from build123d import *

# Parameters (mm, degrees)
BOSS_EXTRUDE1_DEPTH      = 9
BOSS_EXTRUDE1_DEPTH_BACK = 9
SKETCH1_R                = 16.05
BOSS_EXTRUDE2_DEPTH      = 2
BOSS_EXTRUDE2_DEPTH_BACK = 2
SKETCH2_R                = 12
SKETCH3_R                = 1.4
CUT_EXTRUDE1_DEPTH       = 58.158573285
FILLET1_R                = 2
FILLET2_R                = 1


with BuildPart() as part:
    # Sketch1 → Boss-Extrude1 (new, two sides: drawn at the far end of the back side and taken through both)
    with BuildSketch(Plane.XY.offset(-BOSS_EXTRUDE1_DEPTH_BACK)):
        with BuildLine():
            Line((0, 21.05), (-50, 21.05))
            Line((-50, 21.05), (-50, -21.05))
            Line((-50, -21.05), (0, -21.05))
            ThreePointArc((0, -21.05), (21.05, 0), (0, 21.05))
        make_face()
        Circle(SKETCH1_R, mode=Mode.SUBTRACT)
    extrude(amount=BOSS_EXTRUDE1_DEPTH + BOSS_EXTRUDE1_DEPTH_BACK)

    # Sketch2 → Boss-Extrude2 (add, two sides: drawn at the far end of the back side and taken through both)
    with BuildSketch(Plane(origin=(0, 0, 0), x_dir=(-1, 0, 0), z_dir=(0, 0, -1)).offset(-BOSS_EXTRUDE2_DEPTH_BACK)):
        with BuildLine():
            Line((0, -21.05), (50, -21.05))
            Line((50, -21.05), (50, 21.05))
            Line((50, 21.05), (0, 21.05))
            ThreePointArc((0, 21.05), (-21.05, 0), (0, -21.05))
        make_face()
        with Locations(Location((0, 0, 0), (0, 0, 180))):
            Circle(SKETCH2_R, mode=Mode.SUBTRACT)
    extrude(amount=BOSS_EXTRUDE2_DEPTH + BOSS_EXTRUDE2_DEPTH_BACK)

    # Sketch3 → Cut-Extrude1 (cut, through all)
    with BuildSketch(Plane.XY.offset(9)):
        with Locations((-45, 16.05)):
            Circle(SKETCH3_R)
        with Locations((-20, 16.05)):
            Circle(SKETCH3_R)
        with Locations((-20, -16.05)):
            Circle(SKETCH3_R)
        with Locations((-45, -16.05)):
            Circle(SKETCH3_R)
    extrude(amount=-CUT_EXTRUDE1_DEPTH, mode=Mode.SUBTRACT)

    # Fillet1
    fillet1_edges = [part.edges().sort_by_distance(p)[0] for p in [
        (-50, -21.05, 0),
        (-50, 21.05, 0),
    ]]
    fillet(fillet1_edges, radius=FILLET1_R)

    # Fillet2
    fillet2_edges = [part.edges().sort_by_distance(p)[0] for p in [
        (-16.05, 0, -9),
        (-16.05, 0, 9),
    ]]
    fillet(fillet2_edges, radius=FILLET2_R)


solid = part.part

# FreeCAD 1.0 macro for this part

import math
import FreeCAD as App
import Part
import Sketcher

V = App.Vector
Q = App.Units.Quantity


def edges_at(feature, points):
    """Names of the edges that pass closest to the given points."""
    edges = feature.Shape.Edges
    near = lambda p: min(range(len(edges)), key=lambda i: edges[i].distToShape(Part.Vertex(*p))[0])
    return sorted({f"Edge{near(p) + 1}" for p in points})

doc = App.newDocument("Part")
body = doc.addObject("PartDesign::Body", "Body")

# Sketch on XY plane
sketch1 = doc.addObject("Sketcher::SketchObject", "Sketch")
body.addObject(sketch1)
sketch1.AttachmentSupport = (doc.XY_Plane, [""])
sketch1.MapMode = "FlatFace"
sketch1.addGeometry([
    Part.LineSegment(V(0, 21, 0), V(-50, 21, 0)),  # 0
    Part.LineSegment(V(-50, 21, 0), V(-50, -21, 0)),  # 1
    Part.LineSegment(V(-50, -21, 0), V(0, -21, 0)),  # 2
    Part.ArcOfCircle(Part.Circle(V(0, 0, 0), V(0, 0, 1), 21), math.radians(-90), math.radians(90)),  # 3
    Part.Circle(V(0, 0, 0), V(0, 0, 1), 16),  # 4
], False)
sketch1.addConstraint([
    Sketcher.Constraint("Coincident", 0, 2, 1, 1),
    Sketcher.Constraint("Coincident", 1, 2, 2, 1),
    Sketcher.Constraint("Tangent", 2, 2, 3, 1),
    Sketcher.Constraint("Tangent", 3, 2, 0, 1),
    Sketcher.Constraint("Horizontal", 0),
    Sketcher.Constraint("Vertical", 1),
    Sketcher.Constraint("Horizontal", 2),
    Sketcher.Constraint("Coincident", 3, 3, -1, 1),
    Sketcher.Constraint("Coincident", 4, 3, -1, 1),
    Sketcher.Constraint("Diameter", 4, Q("32.1 mm")),
    Sketcher.Constraint("DistanceX", 0, 2, 0, 1, Q("50 mm")),
    Sketcher.Constraint("Radius", 3, Q("21.05 mm")),
])
pad1 = doc.addObject("PartDesign::Pad", "Pad")
body.addObject(pad1)
pad1.Profile = sketch1
pad1.Type = "TwoLengths"
pad1.Length = 9
pad1.Length2 = 9

# Sketch on XY plane
sketch2 = doc.addObject("Sketcher::SketchObject", "Sketch001")
body.addObject(sketch2)
sketch2.AttachmentSupport = (doc.XY_Plane, [""])
sketch2.MapMode = "FlatFace"
sketch2.addGeometry([
    Part.LineSegment(V(0, -21, 0), V(-50, -21, 0)),  # 0
    Part.LineSegment(V(-50, -21, 0), V(-50, 21, 0)),  # 1
    Part.LineSegment(V(-50, 21, 0), V(0, 21, 0)),  # 2
    Part.ArcOfCircle(Part.Circle(V(0, 0, 0), V(0, 0, 1), 21), math.radians(-90), math.radians(90)),  # 3
    Part.Circle(V(0, 0, 0), V(0, 0, 1), 12),  # 4
], False)
sketch2.addConstraint([
    Sketcher.Constraint("Coincident", 0, 2, 1, 1),
    Sketcher.Constraint("Coincident", 1, 2, 2, 1),
    Sketcher.Constraint("Tangent", 2, 2, 3, 2),
    Sketcher.Constraint("Tangent", 3, 1, 0, 1),
    Sketcher.Constraint("Horizontal", 0),
    Sketcher.Constraint("Vertical", 1),
    Sketcher.Constraint("Horizontal", 2),
    Sketcher.Constraint("Coincident", 3, 3, -1, 1),
    Sketcher.Constraint("Coincident", 4, 3, -1, 1),
    Sketcher.Constraint("Diameter", 4, Q("24 mm")),
    Sketcher.Constraint("DistanceX", 0, 2, 0, 1, Q("50 mm")),
    Sketcher.Constraint("Radius", 3, Q("21.05 mm")),
])
pad2 = doc.addObject("PartDesign::Pad", "Pad001")
body.addObject(pad2)
pad2.Profile = sketch2
pad2.Type = "TwoLengths"
pad2.Length = 2
pad2.Length2 = 2
pad2.Reversed = True

# Sketch on XY plane
sketch3 = doc.addObject("Sketcher::SketchObject", "Sketch002")
body.addObject(sketch3)
sketch3.AttachmentSupport = (doc.XY_Plane, [""])
sketch3.MapMode = "FlatFace"
sketch3.AttachmentOffset = App.Placement(V(0, 0, 9), App.Rotation())
sketch3.addGeometry([
    Part.Circle(V(-45, 16.1, 0), V(0, 0, 1), 1.4),
    Part.Circle(V(-20, 16.1, 0), V(0, 0, 1), 1.4),
    Part.Circle(V(-20, -16.1, 0), V(0, 0, 1), 1.4),
    Part.Circle(V(-45, -16.1, 0), V(0, 0, 1), 1.4),
], False)
sketch3.addConstraint([
    Sketcher.Constraint("Equal", 0, 1),
    Sketcher.Constraint("Equal", 1, 2),
    Sketcher.Constraint("Equal", 2, 3),
    Sketcher.Constraint("Symmetric", 1, 3, 2, 3, -1),
    Sketcher.Constraint("Symmetric", 0, 3, 3, 3, -1),
    Sketcher.Constraint("Horizontal", 0, 3, 1, 3),
    Sketcher.Constraint("Diameter", 0, Q("2.8 mm")),
    Sketcher.Constraint("DistanceX", 0, 3, -1, 1, Q("45 mm")),
    Sketcher.Constraint("DistanceX", 1, 3, -1, 1, Q("20 mm")),
    Sketcher.Constraint("DistanceY", 2, 3, 1, 3, Q("32.1 mm")),
])
pocket1 = doc.addObject("PartDesign::Pocket", "Pocket")
body.addObject(pocket1)
pocket1.Profile = sketch3
pocket1.Type = "ThroughAll"
doc.recompute()

fillet = doc.addObject("PartDesign::Fillet", "Fillet")
body.addObject(fillet)
fillet.Base = (pocket1, edges_at(pocket1, [(-50, -21.05, 0), (-50, 21.05, 0)]))
fillet.Radius = 2
doc.recompute()

fillet2 = doc.addObject("PartDesign::Fillet", "Fillet001")
body.addObject(fillet2)
fillet2.Base = (fillet, edges_at(fillet, [(-16.05, 0, -9), (-16.05, 0, 9)]))
fillet2.Radius = 1

doc.recompute()
